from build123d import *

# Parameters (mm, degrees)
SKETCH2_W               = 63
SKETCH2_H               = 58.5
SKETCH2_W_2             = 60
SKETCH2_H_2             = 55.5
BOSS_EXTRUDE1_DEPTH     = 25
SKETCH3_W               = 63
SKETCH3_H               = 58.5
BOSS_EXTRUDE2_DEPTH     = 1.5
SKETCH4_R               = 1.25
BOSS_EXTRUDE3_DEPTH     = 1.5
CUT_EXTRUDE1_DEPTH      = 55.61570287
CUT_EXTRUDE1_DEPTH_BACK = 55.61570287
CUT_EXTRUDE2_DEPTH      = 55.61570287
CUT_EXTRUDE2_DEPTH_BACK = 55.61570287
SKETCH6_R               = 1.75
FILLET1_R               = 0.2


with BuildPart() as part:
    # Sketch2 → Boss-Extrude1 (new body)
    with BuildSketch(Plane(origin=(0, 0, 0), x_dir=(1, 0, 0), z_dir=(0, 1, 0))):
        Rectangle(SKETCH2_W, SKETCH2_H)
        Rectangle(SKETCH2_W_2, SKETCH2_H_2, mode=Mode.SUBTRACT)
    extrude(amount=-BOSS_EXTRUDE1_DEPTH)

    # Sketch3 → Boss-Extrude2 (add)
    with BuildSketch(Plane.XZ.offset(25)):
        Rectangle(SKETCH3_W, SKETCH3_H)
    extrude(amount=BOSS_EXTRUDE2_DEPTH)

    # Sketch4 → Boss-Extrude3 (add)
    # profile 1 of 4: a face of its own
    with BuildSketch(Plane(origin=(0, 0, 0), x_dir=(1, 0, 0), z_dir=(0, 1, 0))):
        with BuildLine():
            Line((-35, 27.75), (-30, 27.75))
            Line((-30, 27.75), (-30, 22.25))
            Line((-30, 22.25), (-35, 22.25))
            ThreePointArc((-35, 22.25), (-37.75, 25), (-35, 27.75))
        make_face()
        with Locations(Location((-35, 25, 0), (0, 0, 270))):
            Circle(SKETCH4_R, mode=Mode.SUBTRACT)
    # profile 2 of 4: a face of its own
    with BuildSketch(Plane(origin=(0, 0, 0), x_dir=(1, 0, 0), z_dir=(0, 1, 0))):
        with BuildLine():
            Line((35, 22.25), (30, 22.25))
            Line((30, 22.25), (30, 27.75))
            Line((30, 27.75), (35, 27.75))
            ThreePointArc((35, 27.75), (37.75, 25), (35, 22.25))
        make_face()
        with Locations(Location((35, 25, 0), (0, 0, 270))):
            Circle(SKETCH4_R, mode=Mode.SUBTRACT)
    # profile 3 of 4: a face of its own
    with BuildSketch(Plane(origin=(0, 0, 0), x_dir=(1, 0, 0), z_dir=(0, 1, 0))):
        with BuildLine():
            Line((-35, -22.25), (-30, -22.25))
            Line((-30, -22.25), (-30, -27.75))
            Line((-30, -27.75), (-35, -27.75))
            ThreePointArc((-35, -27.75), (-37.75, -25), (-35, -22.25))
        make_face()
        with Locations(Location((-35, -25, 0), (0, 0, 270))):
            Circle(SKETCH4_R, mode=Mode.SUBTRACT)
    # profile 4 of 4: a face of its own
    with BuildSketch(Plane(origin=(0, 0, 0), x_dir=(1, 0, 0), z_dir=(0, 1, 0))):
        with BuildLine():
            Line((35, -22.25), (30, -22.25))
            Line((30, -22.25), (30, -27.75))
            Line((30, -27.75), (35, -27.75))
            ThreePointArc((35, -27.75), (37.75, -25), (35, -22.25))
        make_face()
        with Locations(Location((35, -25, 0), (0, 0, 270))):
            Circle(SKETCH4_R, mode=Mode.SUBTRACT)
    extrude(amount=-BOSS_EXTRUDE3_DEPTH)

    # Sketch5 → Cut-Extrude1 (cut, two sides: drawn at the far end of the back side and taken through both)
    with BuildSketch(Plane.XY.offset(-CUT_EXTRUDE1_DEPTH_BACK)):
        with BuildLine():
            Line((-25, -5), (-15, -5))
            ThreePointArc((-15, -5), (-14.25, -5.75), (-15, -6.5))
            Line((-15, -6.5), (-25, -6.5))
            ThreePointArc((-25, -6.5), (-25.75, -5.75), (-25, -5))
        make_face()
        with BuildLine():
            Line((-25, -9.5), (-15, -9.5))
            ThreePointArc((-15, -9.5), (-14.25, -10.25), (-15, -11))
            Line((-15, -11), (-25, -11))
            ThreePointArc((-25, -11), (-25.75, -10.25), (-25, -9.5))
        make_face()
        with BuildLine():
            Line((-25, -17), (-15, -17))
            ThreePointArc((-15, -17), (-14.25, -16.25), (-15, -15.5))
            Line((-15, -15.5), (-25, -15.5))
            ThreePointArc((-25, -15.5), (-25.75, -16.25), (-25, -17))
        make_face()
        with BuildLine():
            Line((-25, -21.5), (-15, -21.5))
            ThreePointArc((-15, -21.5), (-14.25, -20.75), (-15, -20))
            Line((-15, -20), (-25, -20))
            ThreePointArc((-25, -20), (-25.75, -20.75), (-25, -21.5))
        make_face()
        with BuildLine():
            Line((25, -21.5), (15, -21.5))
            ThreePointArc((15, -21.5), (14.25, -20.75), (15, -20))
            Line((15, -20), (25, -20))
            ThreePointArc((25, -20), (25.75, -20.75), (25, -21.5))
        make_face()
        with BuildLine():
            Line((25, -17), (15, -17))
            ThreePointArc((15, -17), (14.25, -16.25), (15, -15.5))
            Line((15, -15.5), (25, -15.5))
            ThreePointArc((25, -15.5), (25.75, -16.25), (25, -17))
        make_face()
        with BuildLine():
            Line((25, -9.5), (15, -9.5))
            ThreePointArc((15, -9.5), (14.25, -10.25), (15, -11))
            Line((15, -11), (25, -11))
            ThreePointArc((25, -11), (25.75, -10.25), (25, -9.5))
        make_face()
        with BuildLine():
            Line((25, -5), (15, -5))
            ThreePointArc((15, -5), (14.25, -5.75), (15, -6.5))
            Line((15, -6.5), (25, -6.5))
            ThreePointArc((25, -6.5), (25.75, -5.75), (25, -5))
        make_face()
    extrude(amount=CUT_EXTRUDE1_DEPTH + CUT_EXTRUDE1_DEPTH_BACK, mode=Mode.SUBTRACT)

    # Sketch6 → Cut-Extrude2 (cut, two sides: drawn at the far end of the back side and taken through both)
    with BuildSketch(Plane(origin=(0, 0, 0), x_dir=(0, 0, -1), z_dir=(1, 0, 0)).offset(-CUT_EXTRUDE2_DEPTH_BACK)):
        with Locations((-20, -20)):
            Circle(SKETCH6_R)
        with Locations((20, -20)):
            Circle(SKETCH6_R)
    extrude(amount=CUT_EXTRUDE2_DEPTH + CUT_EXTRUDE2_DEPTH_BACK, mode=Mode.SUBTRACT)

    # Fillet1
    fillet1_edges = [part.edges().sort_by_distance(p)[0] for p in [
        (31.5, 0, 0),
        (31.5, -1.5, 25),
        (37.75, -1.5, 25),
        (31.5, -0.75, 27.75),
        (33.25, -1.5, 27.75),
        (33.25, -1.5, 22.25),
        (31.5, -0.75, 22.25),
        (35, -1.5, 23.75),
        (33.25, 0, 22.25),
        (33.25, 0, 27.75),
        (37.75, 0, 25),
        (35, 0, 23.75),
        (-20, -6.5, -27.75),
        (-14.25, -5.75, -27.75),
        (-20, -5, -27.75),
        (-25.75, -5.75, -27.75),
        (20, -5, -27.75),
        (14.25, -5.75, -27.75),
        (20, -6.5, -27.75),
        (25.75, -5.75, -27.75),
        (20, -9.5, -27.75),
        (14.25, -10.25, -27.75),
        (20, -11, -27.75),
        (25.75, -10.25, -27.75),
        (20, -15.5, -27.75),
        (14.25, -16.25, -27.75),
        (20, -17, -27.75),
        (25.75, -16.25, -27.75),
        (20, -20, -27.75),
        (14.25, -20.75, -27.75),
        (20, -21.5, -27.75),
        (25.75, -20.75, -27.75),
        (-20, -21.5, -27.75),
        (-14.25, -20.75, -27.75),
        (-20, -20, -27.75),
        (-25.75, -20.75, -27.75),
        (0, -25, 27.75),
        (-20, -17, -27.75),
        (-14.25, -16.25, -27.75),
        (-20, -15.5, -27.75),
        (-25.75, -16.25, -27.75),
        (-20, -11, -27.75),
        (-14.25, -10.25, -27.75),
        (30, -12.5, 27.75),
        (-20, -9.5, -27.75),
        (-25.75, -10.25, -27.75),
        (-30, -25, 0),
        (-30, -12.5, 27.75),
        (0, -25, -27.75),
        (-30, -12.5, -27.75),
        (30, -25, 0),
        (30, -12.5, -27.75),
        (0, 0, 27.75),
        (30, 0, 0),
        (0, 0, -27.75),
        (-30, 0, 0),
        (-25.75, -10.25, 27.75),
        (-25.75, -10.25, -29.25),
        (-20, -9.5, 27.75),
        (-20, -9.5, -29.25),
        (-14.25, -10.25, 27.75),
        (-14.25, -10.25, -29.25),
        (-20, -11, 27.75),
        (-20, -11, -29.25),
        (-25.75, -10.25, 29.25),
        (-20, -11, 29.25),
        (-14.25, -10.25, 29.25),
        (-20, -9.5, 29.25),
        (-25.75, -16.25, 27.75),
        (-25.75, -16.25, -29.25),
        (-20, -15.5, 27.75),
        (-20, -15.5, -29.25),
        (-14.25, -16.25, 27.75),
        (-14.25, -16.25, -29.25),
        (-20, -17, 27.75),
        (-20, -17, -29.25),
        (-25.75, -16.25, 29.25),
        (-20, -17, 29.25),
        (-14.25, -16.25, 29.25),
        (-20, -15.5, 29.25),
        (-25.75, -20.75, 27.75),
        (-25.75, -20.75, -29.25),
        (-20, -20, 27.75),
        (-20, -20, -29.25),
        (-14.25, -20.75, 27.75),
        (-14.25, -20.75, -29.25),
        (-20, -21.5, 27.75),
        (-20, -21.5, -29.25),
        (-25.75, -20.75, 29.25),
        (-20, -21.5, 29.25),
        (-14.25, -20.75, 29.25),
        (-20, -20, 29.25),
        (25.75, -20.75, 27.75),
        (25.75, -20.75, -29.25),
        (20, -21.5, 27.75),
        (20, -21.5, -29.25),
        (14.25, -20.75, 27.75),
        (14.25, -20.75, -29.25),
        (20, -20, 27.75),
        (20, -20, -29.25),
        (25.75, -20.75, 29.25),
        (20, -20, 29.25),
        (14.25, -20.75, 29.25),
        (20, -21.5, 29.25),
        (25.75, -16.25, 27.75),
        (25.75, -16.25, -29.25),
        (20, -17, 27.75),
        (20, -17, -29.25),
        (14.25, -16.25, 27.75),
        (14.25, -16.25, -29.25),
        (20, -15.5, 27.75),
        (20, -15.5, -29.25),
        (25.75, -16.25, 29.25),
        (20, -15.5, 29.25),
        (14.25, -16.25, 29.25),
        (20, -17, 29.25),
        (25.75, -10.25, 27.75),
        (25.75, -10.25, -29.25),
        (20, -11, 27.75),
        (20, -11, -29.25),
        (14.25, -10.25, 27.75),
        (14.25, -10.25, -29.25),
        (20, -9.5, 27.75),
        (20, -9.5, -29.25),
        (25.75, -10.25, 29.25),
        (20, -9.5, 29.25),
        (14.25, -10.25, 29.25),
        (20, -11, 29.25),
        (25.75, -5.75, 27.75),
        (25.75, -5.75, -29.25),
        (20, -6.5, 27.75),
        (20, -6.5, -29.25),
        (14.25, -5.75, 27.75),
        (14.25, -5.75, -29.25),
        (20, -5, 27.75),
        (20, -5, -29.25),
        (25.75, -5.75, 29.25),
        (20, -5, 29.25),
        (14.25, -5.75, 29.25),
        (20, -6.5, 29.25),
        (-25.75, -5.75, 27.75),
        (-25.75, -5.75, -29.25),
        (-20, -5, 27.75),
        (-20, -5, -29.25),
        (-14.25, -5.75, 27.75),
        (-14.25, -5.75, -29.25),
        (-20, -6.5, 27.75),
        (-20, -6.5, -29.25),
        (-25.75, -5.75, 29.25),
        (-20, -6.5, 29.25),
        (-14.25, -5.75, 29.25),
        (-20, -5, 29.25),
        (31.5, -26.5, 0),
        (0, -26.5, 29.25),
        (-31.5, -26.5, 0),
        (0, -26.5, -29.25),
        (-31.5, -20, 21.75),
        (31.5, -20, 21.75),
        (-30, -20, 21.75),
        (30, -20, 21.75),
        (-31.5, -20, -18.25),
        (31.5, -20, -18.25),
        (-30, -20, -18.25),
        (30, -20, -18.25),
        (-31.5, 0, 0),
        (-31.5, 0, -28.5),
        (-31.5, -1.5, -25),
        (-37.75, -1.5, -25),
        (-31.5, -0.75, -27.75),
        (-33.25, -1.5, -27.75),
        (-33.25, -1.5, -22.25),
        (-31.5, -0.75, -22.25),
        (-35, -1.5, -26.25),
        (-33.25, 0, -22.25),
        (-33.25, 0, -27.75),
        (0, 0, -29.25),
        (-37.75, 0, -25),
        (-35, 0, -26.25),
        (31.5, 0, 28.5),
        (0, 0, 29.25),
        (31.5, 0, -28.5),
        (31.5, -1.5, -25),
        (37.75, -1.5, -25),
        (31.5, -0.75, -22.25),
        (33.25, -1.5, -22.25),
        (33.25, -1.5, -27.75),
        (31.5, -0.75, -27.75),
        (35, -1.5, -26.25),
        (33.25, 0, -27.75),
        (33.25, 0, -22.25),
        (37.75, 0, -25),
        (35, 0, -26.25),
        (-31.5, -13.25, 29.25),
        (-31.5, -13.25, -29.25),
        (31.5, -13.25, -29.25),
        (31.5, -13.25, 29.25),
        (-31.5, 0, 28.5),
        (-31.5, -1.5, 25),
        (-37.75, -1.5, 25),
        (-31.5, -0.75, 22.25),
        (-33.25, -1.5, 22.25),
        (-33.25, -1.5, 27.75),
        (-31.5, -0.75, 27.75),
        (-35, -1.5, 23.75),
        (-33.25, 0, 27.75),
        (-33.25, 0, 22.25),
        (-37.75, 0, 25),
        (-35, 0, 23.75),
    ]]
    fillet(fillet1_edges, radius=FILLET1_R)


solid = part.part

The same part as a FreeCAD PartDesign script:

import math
import FreeCAD as App
import Part
import Sketcher
from FreeCAD import Vector
Q = App.Units.Quantity


def add_polygon(sketch, points):
    """Adds a closed chain of lines whose ends are joined by coincident constraints."""
    first, n = sketch.GeometryCount, len(points)
    for a, b in zip(points, points[1:] + points[:1]):
        sketch.addGeometry(Part.LineSegment(App.Vector(*a, 0), App.Vector(*b, 0)), False)
    for i in range(n):
        sketch.addConstraint(Sketcher.Constraint("Coincident", first + i, 2, first + (i + 1) % n, 1))

doc = App.newDocument("Part")
body = doc.addObject("PartDesign::Body", "Body")

sketch1 = doc.addObject("Sketcher::SketchObject", "Sketch")
body.addObject(sketch1)
sketch1.AttachmentSupport = (doc.XZ_Plane, [""])
sketch1.MapMode = "FlatFace"
add_polygon(sketch1, [(-32, -29), (-32, 29), (32, 29), (32, -29)])
add_polygon(sketch1, [(30, 28), (-30, 28), (-30, -28), (30, -28)])
sketch1.addConstraint([
    Sketcher.Constraint("Vertical", 0),
    Sketcher.Constraint("Horizontal", 1),
    Sketcher.Constraint("Vertical", 2),
    Sketcher.Constraint("Horizontal", 3),
    Sketcher.Constraint("Horizontal", 4),
    Sketcher.Constraint("Vertical", 5),
    Sketcher.Constraint("Horizontal", 6),
    Sketcher.Constraint("Vertical", 7),
    Sketcher.Constraint("Symmetric", 0, 2, 2, 2, -1, 1),
    Sketcher.Constraint("Symmetric", 4, 2, 6, 2, -1, 1),
    Sketcher.Constraint("DistanceX", 1, 1, 1, 2, Q("63 mm")),
    Sketcher.Constraint("DistanceX", 4, 2, 4, 1, Q("60 mm")),
    Sketcher.Constraint("DistanceY", 0, 1, 0, 2, Q("58.5 mm")),
    Sketcher.Constraint("DistanceY", 5, 2, 5, 1, Q("55.5 mm")),
])
pad1 = doc.addObject("PartDesign::Pad", "Pad")
body.addObject(pad1)
pad1.Profile = sketch1
pad1.Length = 25

sketch2 = doc.addObject("Sketcher::SketchObject", "Sketch001")
body.addObject(sketch2)
sketch2.AttachmentSupport = (doc.XZ_Plane, [""])
sketch2.MapMode = "FlatFace"
sketch2.AttachmentOffset = App.Placement(Vector(0, 0, 25), App.Rotation())
add_polygon(sketch2, [(-32, 29), (-32, -29), (32, -29), (32, 29)])
sketch2.addConstraint([
    Sketcher.Constraint("Vertical", 0),
    Sketcher.Constraint("Horizontal", 1),
    Sketcher.Constraint("Vertical", 2),
    Sketcher.Constraint("Horizontal", 3),
    Sketcher.Constraint("Symmetric", 0, 2, 2, 2, -1, 1),
    Sketcher.Constraint("DistanceX", 1, 1, 1, 2, Q("63 mm")),
    Sketcher.Constraint("DistanceY", 0, 2, 0, 1, Q("58.5 mm")),
])
pad2 = doc.addObject("PartDesign::Pad", "Pad001")
body.addObject(pad2)
pad2.Profile = sketch2
pad2.Length = 1.5

sketch3 = doc.addObject("Sketcher::SketchObject", "Sketch002")
body.addObject(sketch3)
sketch3.AttachmentSupport = (doc.XZ_Plane, [""])
sketch3.MapMode = "FlatFace"
sketch3.addGeometry([
    Part.LineSegment(Vector(-30, -27.8, 0), Vector(-35, -27.8, 0)),
    Part.ArcOfCircle(Part.Circle(Vector(-35, -25, 0), Vector(0, 0, 1), 2.8), math.radians(90), math.radians(270)),
    Part.LineSegment(Vector(-35, -22.2, 0), Vector(-30, -22.2, 0)),
    Part.LineSegment(Vector(-30, -22.2, 0), Vector(-30, -27.8, 0)),
    Part.Circle(Vector(-35, -25, 0), Vector(0, 0, 1), 1.2),
    Part.LineSegment(Vector(30, -22.2, 0), Vector(35, -22.2, 0)),
    Part.ArcOfCircle(Part.Circle(Vector(35, -25, 0), Vector(0, 0, 1), 2.8), math.radians(-90), math.radians(90)),
    Part.LineSegment(Vector(35, -27.8, 0), Vector(30, -27.8, 0)),
    Part.LineSegment(Vector(30, -27.8, 0), Vector(30, -22.2, 0)),
    Part.Circle(Vector(35, -25, 0), Vector(0, 0, 1), 1.2),
    Part.LineSegment(Vector(-30, 22.2, 0), Vector(-35, 22.2, 0)),
    Part.ArcOfCircle(Part.Circle(Vector(-35, 25, 0), Vector(0, 0, 1), 2.8), math.radians(90), math.radians(270)),
    Part.LineSegment(Vector(-35, 27.8, 0), Vector(-30, 27.8, 0)),
    Part.LineSegment(Vector(-30, 27.8, 0), Vector(-30, 22.2, 0)),
    Part.Circle(Vector(-35, 25, 0), Vector(0, 0, 1), 1.2),
    Part.LineSegment(Vector(35, 22.2, 0), Vector(30, 22.2, 0)),
    Part.LineSegment(Vector(30, 22.2, 0), Vector(30, 27.8, 0)),
    Part.LineSegment(Vector(30, 27.8, 0), Vector(35, 27.8, 0)),
    Part.ArcOfCircle(Part.Circle(Vector(35, 25, 0), Vector(0, 0, 1), 2.8), math.radians(-90), math.radians(90)),
    Part.Circle(Vector(35, 25, 0), Vector(0, 0, 1), 1.2),
], False)
sketch3.addConstraint([
    Sketcher.Constraint("Tangent", 0, 2, 1, 2),
    Sketcher.Constraint("Tangent", 1, 1, 2, 1),
    Sketcher.Constraint("Coincident", 2, 2, 3, 1),
    Sketcher.Constraint("Coincident", 3, 2, 0, 1),
    Sketcher.Constraint("Tangent", 5, 2, 6, 2),
    Sketcher.Constraint("Tangent", 6, 1, 7, 1),
    Sketcher.Constraint("Coincident", 7, 2, 8, 1),
    Sketcher.Constraint("Coincident", 8, 2, 5, 1),
    Sketcher.Constraint("Tangent", 10, 2, 11, 2),
    Sketcher.Constraint("Tangent", 11, 1, 12, 1),
    Sketcher.Constraint("Coincident", 12, 2, 13, 1),
    Sketcher.Constraint("Coincident", 13, 2, 10, 1),
    Sketcher.Constraint("Coincident", 15, 2, 16, 1),
    Sketcher.Constraint("Coincident", 16, 2, 17, 1),
    Sketcher.Constraint("Tangent", 17, 2, 18, 2),
    Sketcher.Constraint("Tangent", 18, 1, 15, 1),
    Sketcher.Constraint("Horizontal", 0),
    Sketcher.Constraint("Horizontal", 2),
    Sketcher.Constraint("Vertical", 3),
    Sketcher.Constraint("Horizontal", 5),
    Sketcher.Constraint("Horizontal", 7),
    Sketcher.Constraint("Vertical", 8),
    Sketcher.Constraint("Horizontal", 10),
    Sketcher.Constraint("Horizontal", 12),
    Sketcher.Constraint("Vertical", 13),
    Sketcher.Constraint("Horizontal", 15),
    Sketcher.Constraint("Vertical", 16),
    Sketcher.Constraint("Horizontal", 17),
    Sketcher.Constraint("Coincident", 4, 3, 1, 3),
    Sketcher.Constraint("Coincident", 9, 3, 6, 3),
    Sketcher.Constraint("Coincident", 14, 3, 11, 3),
    Sketcher.Constraint("Coincident", 19, 3, 18, 3),
    Sketcher.Constraint("Equal", 1, 6),
    Sketcher.Constraint("Equal", 4, 9),
    Sketcher.Constraint("Equal", 6, 11),
    Sketcher.Constraint("Equal", 9, 14),
    Sketcher.Constraint("Equal", 11, 18),
    Sketcher.Constraint("Equal", 14, 19),
    Sketcher.Constraint("Symmetric", 6, 3, 11, 3, -1, 1),
    Sketcher.Constraint("Symmetric", 1, 3, 18, 3, -1, 1),
    Sketcher.Constraint("Symmetric", 1, 3, 6, 3, -2),
    Sketcher.Constraint("Vertical", 3, 2, 12, 2),
    Sketcher.Constraint("Vertical", 8, 2, 15, 2),
    Sketcher.Constraint("Equal", 2, 5),
    Sketcher.Constraint("Diameter", 4, Q("2.5 mm")),
    Sketcher.Constraint("DistanceX", 0, 2, 0, 1, Q("5 mm")),
    Sketcher.Constraint("Radius", 1, Q("2.75 mm")),
    Sketcher.Constraint("DistanceX", 1, 3, -1, 1, Q("35 mm")),
    Sketcher.Constraint("DistanceY", 1, 3, -1, 1, Q("25 mm")),
])
pad3 = doc.addObject("PartDesign::Pad", "Pad002")
body.addObject(pad3)
pad3.Profile = sketch3
pad3.Length = 1.5

sketch4 = doc.addObject("Sketcher::SketchObject", "Sketch003")
body.addObject(sketch4)
sketch4.AttachmentSupport = (doc.XY_Plane, [""])
sketch4.MapMode = "FlatFace"
sketch4.addGeometry([
    Part.LineSegment(Vector(-15, -5, 0), Vector(-25, -5, 0)),
    Part.ArcOfCircle(Part.Circle(Vector(-25, -5.8, 0), Vector(0, 0, 1), 0.8), math.radians(90), math.radians(270)),
    Part.LineSegment(Vector(-25, -6.5, 0), Vector(-15, -6.5, 0)),
    Part.ArcOfCircle(Part.Circle(Vector(-15, -5.8, 0), Vector(0, 0, 1), 0.8), math.radians(-90), math.radians(90)),
    Part.LineSegment(Vector(-15, -9.5, 0), Vector(-25, -9.5, 0)),
    Part.ArcOfCircle(Part.Circle(Vector(-25, -10.2, 0), Vector(0, 0, 1), 0.8), math.radians(90), math.radians(270)),
    Part.LineSegment(Vector(-25, -11, 0), Vector(-15, -11, 0)),
    Part.ArcOfCircle(Part.Circle(Vector(-15, -10.2, 0), Vector(0, 0, 1), 0.8), math.radians(-90), math.radians(90)),
    Part.LineSegment(Vector(-25, -17, 0), Vector(-15, -17, 0)),
    Part.ArcOfCircle(Part.Circle(Vector(-15, -16.2, 0), Vector(0, 0, 1), 0.8), math.radians(-90), math.radians(90)),
    Part.LineSegment(Vector(-15, -15.5, 0), Vector(-25, -15.5, 0)),
    Part.ArcOfCircle(Part.Circle(Vector(-25, -16.2, 0), Vector(0, 0, 1), 0.8), math.radians(90), math.radians(270)),
    Part.LineSegment(Vector(-25, -21.5, 0), Vector(-15, -21.5, 0)),
    Part.ArcOfCircle(Part.Circle(Vector(-15, -20.8, 0), Vector(0, 0, 1), 0.8), math.radians(-90), math.radians(90)),
    Part.LineSegment(Vector(-15, -20, 0), Vector(-25, -20, 0)),
    Part.ArcOfCircle(Part.Circle(Vector(-25, -20.8, 0), Vector(0, 0, 1), 0.8), math.radians(90), math.radians(270)),
    Part.LineSegment(Vector(15, -21.5, 0), Vector(25, -21.5, 0)),
    Part.ArcOfCircle(Part.Circle(Vector(25, -20.8, 0), Vector(0, 0, 1), 0.8), math.radians(-90), math.radians(90)),
    Part.LineSegment(Vector(25, -20, 0), Vector(15, -20, 0)),
    Part.ArcOfCircle(Part.Circle(Vector(15, -20.8, 0), Vector(0, 0, 1), 0.8), math.radians(90), math.radians(270)),
    Part.LineSegment(Vector(15, -17, 0), Vector(25, -17, 0)),
    Part.ArcOfCircle(Part.Circle(Vector(25, -16.2, 0), Vector(0, 0, 1), 0.8), math.radians(-90), math.radians(90)),
    Part.LineSegment(Vector(25, -15.5, 0), Vector(15, -15.5, 0)),
    Part.ArcOfCircle(Part.Circle(Vector(15, -16.2, 0), Vector(0, 0, 1), 0.8), math.radians(90), math.radians(270)),
    Part.LineSegment(Vector(25, -9.5, 0), Vector(15, -9.5, 0)),
    Part.ArcOfCircle(Part.Circle(Vector(15, -10.2, 0), Vector(0, 0, 1), 0.8), math.radians(90), math.radians(270)),
    Part.LineSegment(Vector(15, -11, 0), Vector(25, -11, 0)),
    Part.ArcOfCircle(Part.Circle(Vector(25, -10.2, 0), Vector(0, 0, 1), 0.8), math.radians(-90), math.radians(90)),
    Part.LineSegment(Vector(25, -5, 0), Vector(15, -5, 0)),
    Part.ArcOfCircle(Part.Circle(Vector(15, -5.8, 0), Vector(0, 0, 1), 0.8), math.radians(90), math.radians(270)),
    Part.LineSegment(Vector(15, -6.5, 0), Vector(25, -6.5, 0)),
    Part.ArcOfCircle(Part.Circle(Vector(25, -5.8, 0), Vector(0, 0, 1), 0.8), math.radians(-90), math.radians(90)),
], False)
sketch4.addConstraint([
    Sketcher.Constraint("Tangent", 0, 2, 1, 1),
    Sketcher.Constraint("Tangent", 1, 2, 2, 1),
    Sketcher.Constraint("Tangent", 2, 2, 3, 1),
    Sketcher.Constraint("Tangent", 3, 2, 0, 1),
    Sketcher.Constraint("Tangent", 4, 2, 5, 1),
    Sketcher.Constraint("Tangent", 5, 2, 6, 1),
    Sketcher.Constraint("Tangent", 6, 2, 7, 1),
    Sketcher.Constraint("Tangent", 7, 2, 4, 1),
    Sketcher.Constraint("Tangent", 8, 2, 9, 1),
    Sketcher.Constraint("Tangent", 9, 2, 10, 1),
    Sketcher.Constraint("Tangent", 10, 2, 11, 1),
    Sketcher.Constraint("Tangent", 11, 2, 8, 1),
    Sketcher.Constraint("Tangent", 12, 2, 13, 1),
    Sketcher.Constraint("Tangent", 13, 2, 14, 1),
    Sketcher.Constraint("Tangent", 14, 2, 15, 1),
    Sketcher.Constraint("Tangent", 15, 2, 12, 1),
    Sketcher.Constraint("Tangent", 16, 2, 17, 1),
    Sketcher.Constraint("Tangent", 17, 2, 18, 1),
    Sketcher.Constraint("Tangent", 18, 2, 19, 1),
    Sketcher.Constraint("Tangent", 19, 2, 16, 1),
    Sketcher.Constraint("Tangent", 20, 2, 21, 1),
    Sketcher.Constraint("Tangent", 21, 2, 22, 1),
    Sketcher.Constraint("Tangent", 22, 2, 23, 1),
    Sketcher.Constraint("Tangent", 23, 2, 20, 1),
    Sketcher.Constraint("Tangent", 24, 2, 25, 1),
    Sketcher.Constraint("Tangent", 25, 2, 26, 1),
    Sketcher.Constraint("Tangent", 26, 2, 27, 1),
    Sketcher.Constraint("Tangent", 27, 2, 24, 1),
    Sketcher.Constraint("Tangent", 28, 2, 29, 1),
    Sketcher.Constraint("Tangent", 29, 2, 30, 1),
    Sketcher.Constraint("Tangent", 30, 2, 31, 1),
    Sketcher.Constraint("Tangent", 31, 2, 28, 1),
    Sketcher.Constraint("Horizontal", 0),
    Sketcher.Constraint("Horizontal", 2),
    Sketcher.Constraint("Horizontal", 4),
    Sketcher.Constraint("Horizontal", 6),
    Sketcher.Constraint("Horizontal", 8),
    Sketcher.Constraint("Horizontal", 10),
    Sketcher.Constraint("Horizontal", 12),
    Sketcher.Constraint("Horizontal", 14),
    Sketcher.Constraint("Horizontal", 16),
    Sketcher.Constraint("Horizontal", 18),
    Sketcher.Constraint("Horizontal", 20),
    Sketcher.Constraint("Horizontal", 22),
    Sketcher.Constraint("Horizontal", 24),
    Sketcher.Constraint("Horizontal", 26),
    Sketcher.Constraint("Horizontal", 28),
    Sketcher.Constraint("Horizontal", 30),
    Sketcher.Constraint("Equal", 3, 5),
    Sketcher.Constraint("Equal", 7, 9),
    Sketcher.Constraint("Equal", 11, 13),
    Sketcher.Constraint("Equal", 15, 17),
    Sketcher.Constraint("Equal", 19, 21),
    Sketcher.Constraint("Equal", 23, 25),
    Sketcher.Constraint("Equal", 27, 29),
    Sketcher.Constraint("Symmetric", 15, 3, 17, 3, -2),
    Sketcher.Constraint("Symmetric", 11, 3, 21, 3, -2),
    Sketcher.Constraint("Symmetric", 7, 3, 25, 3, -2),
    Sketcher.Constraint("Symmetric", 3, 3, 29, 3, -2),
    Sketcher.Constraint("Vertical", 1, 3, 5, 3),
    Sketcher.Constraint("Vertical", 3, 3, 7, 3),
    Sketcher.Constraint("Vertical", 7, 3, 9, 3),
    Sketcher.Constraint("Vertical", 5, 3, 11, 3),
    Sketcher.Constraint("Vertical", 9, 3, 13, 3),
    Sketcher.Constraint("Vertical", 11, 3, 15, 3),
    Sketcher.Constraint("Vertical", 19, 3, 23, 3),
    Sketcher.Constraint("Vertical", 23, 3, 25, 3),
    Sketcher.Constraint("Vertical", 21, 3, 27, 3),
    Sketcher.Constraint("Vertical", 27, 3, 31, 3),
    Sketcher.Constraint("DistanceX", 0, 2, 0, 1, Q("10 mm")),
    Sketcher.Constraint("Radius", 1, Q("0.75 mm")),
    Sketcher.Constraint("DistanceX", 1, 3, -1, 1, Q("25 mm")),
    Sketcher.Constraint("DistanceY", 0, 2, -1, 1, Q("5 mm")),
    Sketcher.Constraint("DistanceY", 5, 2, -1, 1, Q("11 mm")),
    Sketcher.Constraint("DistanceY", 8, 2, -1, 1, Q("17 mm")),
    Sketcher.Constraint("DistanceY", 13, 2, -1, 1, Q("20 mm")),
])
pocket1 = doc.addObject("PartDesign::Pocket", "Pocket")
body.addObject(pocket1)
pocket1.Profile = sketch4
pocket1.Type = "ThroughAll"
pocket1.Midplane = True

sketch5 = doc.addObject("Sketcher::SketchObject", "Sketch004")
body.addObject(sketch5)
sketch5.AttachmentSupport = (doc.YZ_Plane, [""])
sketch5.MapMode = "FlatFace"
sketch5.addGeometry([
    Part.Circle(Vector(-20, 20, 0), Vector(0, 0, 1), 1.8),
    Part.Circle(Vector(-20, -20, 0), Vector(0, 0, 1), 1.8),
], False)
sketch5.addConstraint([
    Sketcher.Constraint("Equal", 0, 1),
    Sketcher.Constraint("Symmetric", 0, 3, 1, 3, -1),
    Sketcher.Constraint("Diameter", 0, Q("3.5 mm")),
    Sketcher.Constraint("DistanceX", 0, 3, -1, 1, Q("20 mm")),
    Sketcher.Constraint("DistanceY", -1, 1, 0, 3, Q("20 mm")),
])
pocket2 = doc.addObject("PartDesign::Pocket", "Pocket001")
body.addObject(pocket2)
pocket2.Profile = sketch5
pocket2.Type = "ThroughAll"
pocket2.Midplane = True
doc.recompute()

fillet = doc.addObject("PartDesign::Fillet", "Fillet")
body.addObject(fillet)
fillet.Base = (pocket2, ["Edge1"])
fillet.UseAllEdges = True
fillet.Radius = 0.2

doc.recompute()
